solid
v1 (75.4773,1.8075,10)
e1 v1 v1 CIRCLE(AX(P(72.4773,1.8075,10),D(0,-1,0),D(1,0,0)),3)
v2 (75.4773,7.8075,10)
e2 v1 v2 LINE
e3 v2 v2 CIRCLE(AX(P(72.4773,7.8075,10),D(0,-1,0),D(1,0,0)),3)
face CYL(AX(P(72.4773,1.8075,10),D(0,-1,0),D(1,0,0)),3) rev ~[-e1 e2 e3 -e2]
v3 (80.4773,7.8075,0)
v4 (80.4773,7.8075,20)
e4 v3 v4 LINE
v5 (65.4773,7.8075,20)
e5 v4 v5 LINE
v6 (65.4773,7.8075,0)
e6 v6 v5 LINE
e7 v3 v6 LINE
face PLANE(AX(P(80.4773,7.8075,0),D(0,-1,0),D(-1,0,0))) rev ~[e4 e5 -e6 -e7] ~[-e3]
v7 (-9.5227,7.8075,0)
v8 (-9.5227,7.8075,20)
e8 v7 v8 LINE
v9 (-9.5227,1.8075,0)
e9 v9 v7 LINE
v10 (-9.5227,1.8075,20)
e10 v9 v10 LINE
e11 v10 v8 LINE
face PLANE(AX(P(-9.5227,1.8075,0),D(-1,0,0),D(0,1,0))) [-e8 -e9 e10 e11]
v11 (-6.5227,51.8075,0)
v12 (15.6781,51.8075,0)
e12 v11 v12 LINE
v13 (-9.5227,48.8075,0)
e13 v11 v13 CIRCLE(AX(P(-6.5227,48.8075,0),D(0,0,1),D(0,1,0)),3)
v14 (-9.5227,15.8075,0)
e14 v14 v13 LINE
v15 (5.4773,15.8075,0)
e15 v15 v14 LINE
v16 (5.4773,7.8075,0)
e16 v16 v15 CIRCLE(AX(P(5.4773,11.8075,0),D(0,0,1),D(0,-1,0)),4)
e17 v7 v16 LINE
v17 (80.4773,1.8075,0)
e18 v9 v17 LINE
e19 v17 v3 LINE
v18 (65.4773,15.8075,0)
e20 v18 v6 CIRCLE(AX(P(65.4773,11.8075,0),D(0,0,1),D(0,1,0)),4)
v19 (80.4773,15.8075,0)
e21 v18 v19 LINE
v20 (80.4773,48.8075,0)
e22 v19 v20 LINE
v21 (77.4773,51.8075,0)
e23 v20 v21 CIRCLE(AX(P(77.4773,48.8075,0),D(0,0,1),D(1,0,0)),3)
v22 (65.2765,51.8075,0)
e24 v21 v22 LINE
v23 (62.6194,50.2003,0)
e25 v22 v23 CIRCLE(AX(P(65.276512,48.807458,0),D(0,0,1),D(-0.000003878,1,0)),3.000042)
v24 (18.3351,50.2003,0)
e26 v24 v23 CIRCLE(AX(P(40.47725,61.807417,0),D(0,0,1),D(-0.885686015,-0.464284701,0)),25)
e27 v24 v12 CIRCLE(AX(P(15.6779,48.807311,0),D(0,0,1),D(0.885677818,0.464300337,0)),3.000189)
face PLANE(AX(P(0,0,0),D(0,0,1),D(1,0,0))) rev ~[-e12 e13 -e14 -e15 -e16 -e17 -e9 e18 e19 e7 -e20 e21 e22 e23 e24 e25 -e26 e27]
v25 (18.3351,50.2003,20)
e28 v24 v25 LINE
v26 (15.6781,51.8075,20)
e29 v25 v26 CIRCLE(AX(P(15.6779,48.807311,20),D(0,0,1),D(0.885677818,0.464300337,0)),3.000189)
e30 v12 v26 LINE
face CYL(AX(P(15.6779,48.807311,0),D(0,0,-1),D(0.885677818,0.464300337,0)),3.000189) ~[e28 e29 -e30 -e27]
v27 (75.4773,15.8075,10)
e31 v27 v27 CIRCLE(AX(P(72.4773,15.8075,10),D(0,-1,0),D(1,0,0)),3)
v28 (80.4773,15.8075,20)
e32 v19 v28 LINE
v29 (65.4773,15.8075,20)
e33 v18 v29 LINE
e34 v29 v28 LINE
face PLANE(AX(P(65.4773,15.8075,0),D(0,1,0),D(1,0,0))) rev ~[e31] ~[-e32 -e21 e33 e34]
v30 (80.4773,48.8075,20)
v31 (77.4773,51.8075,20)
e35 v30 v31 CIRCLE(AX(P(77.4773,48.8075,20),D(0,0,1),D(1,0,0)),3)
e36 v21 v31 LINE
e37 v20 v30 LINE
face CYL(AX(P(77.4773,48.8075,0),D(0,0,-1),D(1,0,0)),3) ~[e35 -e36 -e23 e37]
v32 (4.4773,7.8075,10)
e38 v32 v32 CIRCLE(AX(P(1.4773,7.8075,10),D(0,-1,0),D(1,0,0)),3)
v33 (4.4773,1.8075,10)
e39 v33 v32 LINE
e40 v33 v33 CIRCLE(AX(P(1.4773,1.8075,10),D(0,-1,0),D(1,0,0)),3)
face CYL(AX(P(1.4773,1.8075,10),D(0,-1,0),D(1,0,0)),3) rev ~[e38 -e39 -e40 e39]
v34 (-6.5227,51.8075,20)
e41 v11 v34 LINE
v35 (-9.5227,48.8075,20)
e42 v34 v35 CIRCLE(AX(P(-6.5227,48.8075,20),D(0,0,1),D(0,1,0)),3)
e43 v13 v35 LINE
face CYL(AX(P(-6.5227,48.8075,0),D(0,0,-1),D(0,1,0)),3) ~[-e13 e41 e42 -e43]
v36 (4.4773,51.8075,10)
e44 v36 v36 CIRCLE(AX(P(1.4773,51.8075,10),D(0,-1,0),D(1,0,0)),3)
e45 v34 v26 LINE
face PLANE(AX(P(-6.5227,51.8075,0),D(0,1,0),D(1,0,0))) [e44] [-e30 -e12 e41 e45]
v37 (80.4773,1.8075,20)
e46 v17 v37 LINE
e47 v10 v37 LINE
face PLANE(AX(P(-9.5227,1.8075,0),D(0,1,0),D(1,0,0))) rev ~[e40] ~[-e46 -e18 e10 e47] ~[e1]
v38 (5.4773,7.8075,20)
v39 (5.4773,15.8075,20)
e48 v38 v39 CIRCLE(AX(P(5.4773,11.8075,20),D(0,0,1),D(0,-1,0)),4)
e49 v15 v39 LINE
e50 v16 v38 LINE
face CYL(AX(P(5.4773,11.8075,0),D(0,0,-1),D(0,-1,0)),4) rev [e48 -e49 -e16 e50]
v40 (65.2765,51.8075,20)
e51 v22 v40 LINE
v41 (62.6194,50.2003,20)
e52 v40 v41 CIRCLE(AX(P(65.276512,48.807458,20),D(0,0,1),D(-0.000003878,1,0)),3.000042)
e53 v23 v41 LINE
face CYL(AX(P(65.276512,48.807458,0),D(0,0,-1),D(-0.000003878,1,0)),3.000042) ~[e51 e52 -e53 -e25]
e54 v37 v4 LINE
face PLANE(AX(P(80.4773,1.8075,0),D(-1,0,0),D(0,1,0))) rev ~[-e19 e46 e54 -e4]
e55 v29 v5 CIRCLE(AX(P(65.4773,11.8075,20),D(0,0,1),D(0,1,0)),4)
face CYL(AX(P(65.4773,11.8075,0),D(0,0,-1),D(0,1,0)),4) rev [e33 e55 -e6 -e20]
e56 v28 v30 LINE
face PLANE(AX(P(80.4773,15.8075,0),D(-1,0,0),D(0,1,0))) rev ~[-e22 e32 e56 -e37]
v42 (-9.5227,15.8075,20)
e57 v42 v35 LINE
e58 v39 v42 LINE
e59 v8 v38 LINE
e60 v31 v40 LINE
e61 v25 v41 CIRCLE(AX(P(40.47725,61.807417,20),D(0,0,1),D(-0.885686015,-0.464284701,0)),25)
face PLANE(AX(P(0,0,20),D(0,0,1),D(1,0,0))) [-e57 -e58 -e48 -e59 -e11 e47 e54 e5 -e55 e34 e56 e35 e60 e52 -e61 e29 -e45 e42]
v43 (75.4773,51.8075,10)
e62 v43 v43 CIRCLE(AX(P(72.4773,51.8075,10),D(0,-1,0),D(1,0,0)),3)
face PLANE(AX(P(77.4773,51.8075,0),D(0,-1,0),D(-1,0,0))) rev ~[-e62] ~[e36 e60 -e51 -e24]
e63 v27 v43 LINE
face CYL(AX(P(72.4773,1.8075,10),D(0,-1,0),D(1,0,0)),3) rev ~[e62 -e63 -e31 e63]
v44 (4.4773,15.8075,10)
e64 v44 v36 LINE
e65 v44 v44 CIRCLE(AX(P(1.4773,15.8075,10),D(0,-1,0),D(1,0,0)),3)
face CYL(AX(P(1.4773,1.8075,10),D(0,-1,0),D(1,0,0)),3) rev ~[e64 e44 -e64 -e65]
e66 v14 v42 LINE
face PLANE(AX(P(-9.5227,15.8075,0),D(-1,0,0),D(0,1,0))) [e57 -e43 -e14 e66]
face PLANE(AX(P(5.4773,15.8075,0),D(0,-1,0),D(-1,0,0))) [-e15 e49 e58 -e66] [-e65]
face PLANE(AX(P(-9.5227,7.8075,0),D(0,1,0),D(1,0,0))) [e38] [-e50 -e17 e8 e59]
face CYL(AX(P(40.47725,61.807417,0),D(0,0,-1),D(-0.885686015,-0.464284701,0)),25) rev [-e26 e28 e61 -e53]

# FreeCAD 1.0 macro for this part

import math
import FreeCAD as App
import Part
import Sketcher

V = App.Vector
Q = App.Units.Quantity

doc = App.newDocument("Part")
body = doc.addObject("PartDesign::Body", "Body")

# Sketch on XY plane
sketch1 = body.newObject("Sketcher::SketchObject", "Sketch")
sketch1.AttachmentSupport = (doc.getObject("XY_Plane"), [""])
sketch1.MapMode = "FlatFace"
sketch1.addGeometry([
    Part.LineSegment(V(-9.5227, 7.8075, 0), V(-9.5227, 1.8075, 0)),  # 0
    Part.LineSegment(V(-9.5227, 1.8075, 0), V(80.4773, 1.8075, 0)),  # 1
    Part.LineSegment(V(80.4773, 1.8075, 0), V(80.4773, 7.8075, 0)),  # 2
    Part.LineSegment(V(80.4773, 7.8075, 0), V(65.4773, 7.8075, 0)),  # 3
    Part.ArcOfCircle(Part.Circle(V(65.4773, 11.8075, 0), V(0, 0, 1), 4), math.radians(90), math.radians(270)),  # 4
    Part.LineSegment(V(65.4773, 15.8075, 0), V(80.4773, 15.8075, 0)),  # 5
    Part.LineSegment(V(80.4773, 15.8075, 0), V(80.4773, 48.8075, 0)),  # 6
    Part.ArcOfCircle(Part.Circle(V(77.4773, 48.8075, 0), V(0, 0, 1), 3), math.radians(0), math.radians(90)),  # 7
    Part.LineSegment(V(77.4773, 51.8075, 0), V(65.2765, 51.8075, 0)),  # 8
    Part.ArcOfCircle(Part.Circle(V(65.2765, 48.8075, 0), V(0, 0, 1), 3), math.radians(90), math.radians(152.337348)),  # 9
    Part.ArcOfCircle(Part.Circle(V(40.4773, 61.8075, 0), V(0, 0, 1), 25.000082), math.radians(-152.335946), math.radians(-27.66416)),  # 10
    Part.ArcOfCircle(Part.Circle(V(15.6781, 48.8075, 0), V(0, 0, 1), 2.999923), math.radians(27.663538), math.radians(90)),  # 11
    Part.LineSegment(V(15.6781, 51.8075, 0), V(-6.5227, 51.8075, 0)),  # 12
    Part.ArcOfCircle(Part.Circle(V(-6.5227, 48.8075, 0), V(0, 0, 1), 3), math.radians(90), math.radians(180)),  # 13
    Part.LineSegment(V(-9.5227, 48.8075, 0), V(-9.5227, 15.8075, 0)),  # 14
    Part.LineSegment(V(-9.5227, 15.8075, 0), V(5.4773, 15.8075, 0)),  # 15
    Part.ArcOfCircle(Part.Circle(V(5.4773, 11.8075, 0), V(0, 0, 1), 4), math.radians(-90), math.radians(90)),  # 16
    Part.LineSegment(V(5.4773, 7.8075, 0), V(-9.5227, 7.8075, 0)),  # 17
], False)
sketch1.addConstraint([
    Sketcher.Constraint("Coincident", 0, 2, 1, 1),
    Sketcher.Constraint("Coincident", 1, 2, 2, 1),
    Sketcher.Constraint("Coincident", 2, 2, 3, 1),
    Sketcher.Constraint("Tangent", 3, 2, 4, 2),
    Sketcher.Constraint("Tangent", 4, 1, 5, 1),
    Sketcher.Constraint("Coincident", 5, 2, 6, 1),
    Sketcher.Constraint("Tangent", 6, 2, 7, 1),
    Sketcher.Constraint("Tangent", 7, 2, 8, 1),
    Sketcher.Constraint("Tangent", 8, 2, 9, 1),
    Sketcher.Constraint("Tangent", 9, 2, 10, 2),
    Sketcher.Constraint("Tangent", 10, 1, 11, 1),
    Sketcher.Constraint("Tangent", 11, 2, 12, 1),
    Sketcher.Constraint("Tangent", 12, 2, 13, 1),
    Sketcher.Constraint("Tangent", 13, 2, 14, 1),
    Sketcher.Constraint("Coincident", 14, 2, 15, 1),
    Sketcher.Constraint("Tangent", 15, 2, 16, 2),
    Sketcher.Constraint("Tangent", 16, 1, 17, 1),
    Sketcher.Constraint("Coincident", 17, 2, 0, 1),
    Sketcher.Constraint("Vertical", 0),
    Sketcher.Constraint("Horizontal", 1),
    Sketcher.Constraint("Vertical", 2),
    Sketcher.Constraint("Horizontal", 3),
    Sketcher.Constraint("Horizontal", 5),
    Sketcher.Constraint("Vertical", 6),
    Sketcher.Constraint("Horizontal", 8),
    Sketcher.Constraint("Horizontal", 12),
    Sketcher.Constraint("Vertical", 14),
    Sketcher.Constraint("Horizontal", 15),
    Sketcher.Constraint("Horizontal", 17),
    Sketcher.Constraint("Equal", 7, 9),
    Sketcher.Constraint("Equal", 9, 11),
    Sketcher.Constraint("Equal", 11, 13),
    Sketcher.Constraint("Equal", 4, 16),
    Sketcher.Constraint("Horizontal", 9, 3, 11, 3),
    Sketcher.Constraint("Horizontal", 4, 3, 16, 3),
    Sketcher.Constraint("Vertical", 2, 2, 5, 2),
    Sketcher.Constraint("Vertical", 0, 2, 13, 2),
    Sketcher.Constraint("Equal", 5, 15),
    Sketcher.Constraint("Radius", 4, Q("4 mm")),
    Sketcher.Constraint("Radius", 7, Q("3 mm")),
    Sketcher.Constraint("Radius", 10, Q("25 mm")),
    Sketcher.Constraint("DistanceX", 1, 1, 1, 2, Q("90 mm")),
    Sketcher.Constraint("DistanceX", 3, 2, 3, 1, Q("15 mm")),
    Sketcher.Constraint("DistanceY", 0, 2, 0, 1, Q("6 mm")),
    Sketcher.Constraint("DistanceY", 4, 3, 10, 3, Q("50 mm")),
    Sketcher.Constraint("DistanceX", 0, 2, 10, 3, Q("50 mm")),
    Sketcher.Constraint("DistanceY", 5, 2, 7, 2, Q("36 mm")),
    Sketcher.Constraint("DistanceX", -1, 1, 11, 3, Q("15.678 mm")),
    Sketcher.Constraint("DistanceY", -1, 1, 4, 3, Q("11.8075 mm")),
])
pad1 = body.newObject("PartDesign::Pad", "Pad")
pad1.Profile = sketch1
pad1.Length = 20

# Sketch on XZ plane
sketch2 = body.newObject("Sketcher::SketchObject", "Sketch001")
sketch2.AttachmentSupport = (doc.getObject("XZ_Plane"), [""])
sketch2.MapMode = "FlatFace"
sketch2.AttachmentOffset = App.Placement(V(0, 0, -1.8075), App.Rotation())
sketch2.addGeometry([
    Part.Circle(V(72.4773, 10, 0), V(0, 0, 1), 3),
    Part.Circle(V(1.4773, 10, 0), V(0, 0, 1), 3),
], False)
sketch2.addConstraint([
    Sketcher.Constraint("Equal", 0, 1),
    Sketcher.Constraint("Horizontal", 0, 3, 1, 3),
    Sketcher.Constraint("Diameter", 0, Q("6 mm")),
    Sketcher.Constraint("DistanceY", -1, 1, 0, 3, Q("10 mm")),
    Sketcher.Constraint("DistanceX", 1, 3, 0, 3, Q("71 mm")),
    Sketcher.Constraint("DistanceX", -1, 1, 0, 3, Q("72.4773 mm")),
])
pocket1 = body.newObject("PartDesign::Pocket", "Pocket")
pocket1.Profile = sketch2
pocket1.Length = 50

doc.recompute()
